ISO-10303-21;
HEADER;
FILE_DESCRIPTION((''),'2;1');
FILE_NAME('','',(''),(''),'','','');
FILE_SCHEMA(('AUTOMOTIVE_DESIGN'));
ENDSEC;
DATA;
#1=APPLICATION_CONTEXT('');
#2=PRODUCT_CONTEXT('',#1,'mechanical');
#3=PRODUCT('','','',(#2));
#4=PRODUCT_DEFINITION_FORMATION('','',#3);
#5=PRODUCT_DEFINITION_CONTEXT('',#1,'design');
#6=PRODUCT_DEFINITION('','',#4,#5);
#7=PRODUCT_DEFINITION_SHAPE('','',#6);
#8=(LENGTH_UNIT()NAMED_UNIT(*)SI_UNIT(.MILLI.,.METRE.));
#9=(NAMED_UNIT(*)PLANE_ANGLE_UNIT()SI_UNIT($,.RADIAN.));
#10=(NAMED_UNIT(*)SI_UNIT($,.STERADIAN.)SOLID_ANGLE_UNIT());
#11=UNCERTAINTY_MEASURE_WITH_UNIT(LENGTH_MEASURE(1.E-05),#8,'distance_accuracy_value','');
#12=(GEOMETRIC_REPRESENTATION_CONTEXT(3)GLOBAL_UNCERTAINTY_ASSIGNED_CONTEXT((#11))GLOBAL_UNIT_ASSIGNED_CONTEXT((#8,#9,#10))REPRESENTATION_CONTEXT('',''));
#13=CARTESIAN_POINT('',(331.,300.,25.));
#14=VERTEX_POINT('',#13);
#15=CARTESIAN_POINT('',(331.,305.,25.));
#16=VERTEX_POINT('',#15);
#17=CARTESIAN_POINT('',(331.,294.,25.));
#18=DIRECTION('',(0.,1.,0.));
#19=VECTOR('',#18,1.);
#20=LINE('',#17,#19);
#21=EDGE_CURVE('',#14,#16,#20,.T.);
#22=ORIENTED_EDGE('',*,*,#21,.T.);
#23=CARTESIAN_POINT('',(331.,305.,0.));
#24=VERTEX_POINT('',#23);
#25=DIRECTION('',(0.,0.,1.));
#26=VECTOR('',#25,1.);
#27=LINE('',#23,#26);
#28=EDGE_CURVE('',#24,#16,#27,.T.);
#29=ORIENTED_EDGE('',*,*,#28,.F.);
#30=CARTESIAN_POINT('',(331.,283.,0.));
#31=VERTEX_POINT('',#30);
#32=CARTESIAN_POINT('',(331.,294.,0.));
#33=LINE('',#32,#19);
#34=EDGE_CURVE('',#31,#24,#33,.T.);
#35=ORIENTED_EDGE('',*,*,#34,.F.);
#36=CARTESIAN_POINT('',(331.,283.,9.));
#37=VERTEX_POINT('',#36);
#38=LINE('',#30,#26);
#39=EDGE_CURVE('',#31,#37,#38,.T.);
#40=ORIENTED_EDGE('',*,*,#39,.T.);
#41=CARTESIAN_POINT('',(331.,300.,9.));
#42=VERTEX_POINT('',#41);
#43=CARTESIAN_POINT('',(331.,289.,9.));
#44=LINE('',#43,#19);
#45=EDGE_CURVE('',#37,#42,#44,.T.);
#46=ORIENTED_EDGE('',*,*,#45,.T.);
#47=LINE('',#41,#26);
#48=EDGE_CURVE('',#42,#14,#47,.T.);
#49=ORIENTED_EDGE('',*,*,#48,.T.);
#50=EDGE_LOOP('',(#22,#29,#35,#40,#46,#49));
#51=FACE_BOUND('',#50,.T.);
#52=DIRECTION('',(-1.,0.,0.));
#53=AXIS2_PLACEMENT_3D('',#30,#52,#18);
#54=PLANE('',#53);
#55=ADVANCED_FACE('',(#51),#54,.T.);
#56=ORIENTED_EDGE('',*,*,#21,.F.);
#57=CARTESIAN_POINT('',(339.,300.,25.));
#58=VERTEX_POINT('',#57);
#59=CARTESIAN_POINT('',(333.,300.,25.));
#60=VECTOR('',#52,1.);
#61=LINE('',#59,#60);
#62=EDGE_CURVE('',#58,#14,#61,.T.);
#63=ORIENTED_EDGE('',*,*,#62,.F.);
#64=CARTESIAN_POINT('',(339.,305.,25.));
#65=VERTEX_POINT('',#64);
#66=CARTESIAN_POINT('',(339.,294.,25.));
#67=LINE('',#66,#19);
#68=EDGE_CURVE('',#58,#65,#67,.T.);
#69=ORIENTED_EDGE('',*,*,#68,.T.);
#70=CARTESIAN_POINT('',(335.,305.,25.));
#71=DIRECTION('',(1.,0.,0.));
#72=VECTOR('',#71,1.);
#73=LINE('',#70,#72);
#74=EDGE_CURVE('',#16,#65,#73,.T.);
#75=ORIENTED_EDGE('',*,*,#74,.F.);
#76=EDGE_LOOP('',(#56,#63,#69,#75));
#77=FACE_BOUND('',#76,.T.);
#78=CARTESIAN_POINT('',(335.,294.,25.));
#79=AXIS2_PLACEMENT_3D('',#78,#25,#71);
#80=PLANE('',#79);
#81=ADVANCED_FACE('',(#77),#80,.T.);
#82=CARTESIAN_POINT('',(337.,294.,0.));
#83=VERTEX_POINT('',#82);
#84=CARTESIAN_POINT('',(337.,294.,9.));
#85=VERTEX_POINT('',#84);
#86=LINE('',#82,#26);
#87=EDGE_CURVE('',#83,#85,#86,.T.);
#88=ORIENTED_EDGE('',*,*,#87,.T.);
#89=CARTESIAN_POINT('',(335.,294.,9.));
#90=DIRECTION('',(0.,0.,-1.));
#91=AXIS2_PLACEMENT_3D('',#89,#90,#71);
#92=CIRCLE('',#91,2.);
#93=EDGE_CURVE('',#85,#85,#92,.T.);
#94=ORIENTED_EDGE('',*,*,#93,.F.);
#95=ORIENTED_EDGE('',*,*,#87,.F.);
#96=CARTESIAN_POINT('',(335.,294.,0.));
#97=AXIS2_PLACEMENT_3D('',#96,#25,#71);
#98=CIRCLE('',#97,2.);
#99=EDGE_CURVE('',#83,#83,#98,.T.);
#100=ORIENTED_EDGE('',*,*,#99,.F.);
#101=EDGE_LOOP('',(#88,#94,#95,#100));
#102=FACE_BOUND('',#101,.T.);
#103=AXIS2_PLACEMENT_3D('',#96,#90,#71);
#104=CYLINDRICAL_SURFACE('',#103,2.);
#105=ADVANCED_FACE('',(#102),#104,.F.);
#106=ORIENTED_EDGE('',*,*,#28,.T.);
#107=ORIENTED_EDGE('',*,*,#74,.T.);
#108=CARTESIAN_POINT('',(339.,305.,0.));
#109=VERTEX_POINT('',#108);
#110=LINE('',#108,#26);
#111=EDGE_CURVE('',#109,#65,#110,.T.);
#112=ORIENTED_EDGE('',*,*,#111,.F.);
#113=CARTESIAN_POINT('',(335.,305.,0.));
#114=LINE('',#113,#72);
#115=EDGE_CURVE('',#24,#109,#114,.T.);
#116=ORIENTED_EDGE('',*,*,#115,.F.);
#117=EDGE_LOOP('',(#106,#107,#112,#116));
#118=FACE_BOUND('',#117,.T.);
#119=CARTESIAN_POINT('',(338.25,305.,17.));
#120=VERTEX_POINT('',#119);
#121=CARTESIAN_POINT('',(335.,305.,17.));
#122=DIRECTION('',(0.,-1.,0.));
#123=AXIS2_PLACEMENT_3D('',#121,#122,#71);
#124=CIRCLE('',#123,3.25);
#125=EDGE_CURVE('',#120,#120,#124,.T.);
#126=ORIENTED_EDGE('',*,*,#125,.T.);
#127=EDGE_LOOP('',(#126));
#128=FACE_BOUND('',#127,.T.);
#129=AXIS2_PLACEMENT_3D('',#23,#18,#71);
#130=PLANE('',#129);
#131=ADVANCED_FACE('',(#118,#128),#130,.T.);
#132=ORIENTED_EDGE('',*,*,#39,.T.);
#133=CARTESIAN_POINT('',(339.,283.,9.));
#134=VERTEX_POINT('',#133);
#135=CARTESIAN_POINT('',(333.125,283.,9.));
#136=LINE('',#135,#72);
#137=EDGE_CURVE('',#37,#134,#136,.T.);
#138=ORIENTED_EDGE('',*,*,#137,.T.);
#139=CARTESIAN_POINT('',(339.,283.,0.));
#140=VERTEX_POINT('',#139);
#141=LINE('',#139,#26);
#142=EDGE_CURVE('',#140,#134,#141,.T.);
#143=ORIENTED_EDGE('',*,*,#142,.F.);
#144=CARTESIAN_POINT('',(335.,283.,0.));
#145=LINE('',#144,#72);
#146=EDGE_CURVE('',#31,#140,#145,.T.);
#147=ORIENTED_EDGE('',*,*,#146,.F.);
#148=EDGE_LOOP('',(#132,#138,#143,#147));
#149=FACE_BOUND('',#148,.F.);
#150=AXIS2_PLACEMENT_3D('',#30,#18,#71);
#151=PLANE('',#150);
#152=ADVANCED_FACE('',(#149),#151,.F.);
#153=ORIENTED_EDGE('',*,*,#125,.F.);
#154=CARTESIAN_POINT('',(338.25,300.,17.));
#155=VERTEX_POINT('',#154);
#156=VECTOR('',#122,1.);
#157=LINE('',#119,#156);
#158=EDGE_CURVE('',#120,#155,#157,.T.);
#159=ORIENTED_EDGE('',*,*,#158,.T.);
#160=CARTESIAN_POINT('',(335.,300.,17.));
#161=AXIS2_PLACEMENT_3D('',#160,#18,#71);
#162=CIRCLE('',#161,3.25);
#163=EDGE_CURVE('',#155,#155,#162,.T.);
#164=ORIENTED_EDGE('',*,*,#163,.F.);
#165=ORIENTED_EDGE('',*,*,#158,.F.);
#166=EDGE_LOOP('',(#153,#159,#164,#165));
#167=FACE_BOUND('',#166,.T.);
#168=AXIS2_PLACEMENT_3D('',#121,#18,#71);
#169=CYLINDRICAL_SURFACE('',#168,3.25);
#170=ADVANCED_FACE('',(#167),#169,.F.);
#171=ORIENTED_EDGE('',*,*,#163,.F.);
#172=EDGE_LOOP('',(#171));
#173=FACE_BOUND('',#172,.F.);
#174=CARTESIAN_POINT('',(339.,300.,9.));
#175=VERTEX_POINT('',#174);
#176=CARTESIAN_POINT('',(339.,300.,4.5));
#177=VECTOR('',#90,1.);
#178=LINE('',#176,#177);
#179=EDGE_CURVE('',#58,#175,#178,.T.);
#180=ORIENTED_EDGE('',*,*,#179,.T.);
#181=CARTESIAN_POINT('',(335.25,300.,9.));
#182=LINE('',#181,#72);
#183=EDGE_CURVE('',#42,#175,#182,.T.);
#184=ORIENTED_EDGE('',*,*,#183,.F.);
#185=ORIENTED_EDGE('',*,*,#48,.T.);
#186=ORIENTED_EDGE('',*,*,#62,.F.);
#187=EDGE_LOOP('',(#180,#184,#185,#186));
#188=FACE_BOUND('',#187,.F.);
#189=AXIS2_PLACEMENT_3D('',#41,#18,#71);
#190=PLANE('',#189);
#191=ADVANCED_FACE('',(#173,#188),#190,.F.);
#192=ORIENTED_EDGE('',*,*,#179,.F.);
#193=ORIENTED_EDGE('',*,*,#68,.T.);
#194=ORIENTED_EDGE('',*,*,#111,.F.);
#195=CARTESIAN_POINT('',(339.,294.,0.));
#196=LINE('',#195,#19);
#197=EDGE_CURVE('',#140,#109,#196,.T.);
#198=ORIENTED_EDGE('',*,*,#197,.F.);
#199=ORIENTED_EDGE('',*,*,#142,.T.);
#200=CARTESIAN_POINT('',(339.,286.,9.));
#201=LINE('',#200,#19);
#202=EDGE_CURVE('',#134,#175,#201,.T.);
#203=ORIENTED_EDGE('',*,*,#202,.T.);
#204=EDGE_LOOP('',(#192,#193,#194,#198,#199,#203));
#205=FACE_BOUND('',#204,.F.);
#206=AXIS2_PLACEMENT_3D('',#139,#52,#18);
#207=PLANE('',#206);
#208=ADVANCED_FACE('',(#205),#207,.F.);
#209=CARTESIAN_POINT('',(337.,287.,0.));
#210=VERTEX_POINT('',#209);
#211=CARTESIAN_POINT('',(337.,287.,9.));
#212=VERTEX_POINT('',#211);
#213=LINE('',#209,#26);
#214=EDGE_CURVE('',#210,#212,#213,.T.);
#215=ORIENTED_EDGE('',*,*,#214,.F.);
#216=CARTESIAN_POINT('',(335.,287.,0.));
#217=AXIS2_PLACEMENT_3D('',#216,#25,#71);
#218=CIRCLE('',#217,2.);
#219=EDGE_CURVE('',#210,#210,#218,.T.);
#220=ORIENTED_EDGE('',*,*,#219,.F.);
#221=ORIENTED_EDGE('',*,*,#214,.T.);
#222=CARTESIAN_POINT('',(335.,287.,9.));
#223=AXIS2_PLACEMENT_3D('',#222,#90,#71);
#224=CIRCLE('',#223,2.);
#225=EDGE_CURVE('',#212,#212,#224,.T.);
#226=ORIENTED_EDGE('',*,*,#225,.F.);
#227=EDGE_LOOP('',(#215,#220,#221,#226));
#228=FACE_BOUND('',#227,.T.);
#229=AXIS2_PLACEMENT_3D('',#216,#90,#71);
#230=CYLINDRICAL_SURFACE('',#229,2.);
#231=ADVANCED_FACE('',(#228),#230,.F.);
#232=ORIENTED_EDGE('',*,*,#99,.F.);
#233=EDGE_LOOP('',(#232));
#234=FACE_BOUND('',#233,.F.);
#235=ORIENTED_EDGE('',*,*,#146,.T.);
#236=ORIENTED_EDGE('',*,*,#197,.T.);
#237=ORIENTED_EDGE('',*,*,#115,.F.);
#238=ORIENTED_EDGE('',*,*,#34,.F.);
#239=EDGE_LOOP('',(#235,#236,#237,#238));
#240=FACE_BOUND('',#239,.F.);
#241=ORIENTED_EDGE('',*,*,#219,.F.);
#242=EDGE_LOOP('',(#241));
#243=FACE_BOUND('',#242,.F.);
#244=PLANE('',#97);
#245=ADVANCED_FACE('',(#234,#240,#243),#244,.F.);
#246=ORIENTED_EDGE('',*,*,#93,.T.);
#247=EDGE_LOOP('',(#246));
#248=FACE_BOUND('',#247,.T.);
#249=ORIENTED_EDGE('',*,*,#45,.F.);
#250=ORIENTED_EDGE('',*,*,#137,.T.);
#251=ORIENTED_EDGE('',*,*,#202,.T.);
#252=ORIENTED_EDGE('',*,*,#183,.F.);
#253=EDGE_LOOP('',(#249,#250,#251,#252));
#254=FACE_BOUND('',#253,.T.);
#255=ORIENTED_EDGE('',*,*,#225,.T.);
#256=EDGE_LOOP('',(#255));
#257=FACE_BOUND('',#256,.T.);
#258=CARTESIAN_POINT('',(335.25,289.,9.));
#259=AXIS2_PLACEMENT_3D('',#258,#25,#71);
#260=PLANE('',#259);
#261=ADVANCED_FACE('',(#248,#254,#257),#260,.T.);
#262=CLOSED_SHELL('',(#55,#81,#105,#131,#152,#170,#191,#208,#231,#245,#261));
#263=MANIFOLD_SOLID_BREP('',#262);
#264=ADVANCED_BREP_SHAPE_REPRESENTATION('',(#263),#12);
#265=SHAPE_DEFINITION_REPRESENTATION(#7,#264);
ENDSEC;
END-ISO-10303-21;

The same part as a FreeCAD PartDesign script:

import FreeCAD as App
import Part
import Sketcher

V = App.Vector
Q = App.Units.Quantity


def add_polygon(sketch, points):
    """Adds a closed chain of lines whose ends are joined by coincident constraints."""
    first, n = sketch.GeometryCount, len(points)
    for a, b in zip(points, points[1:] + points[:1]):
        sketch.addGeometry(Part.LineSegment(App.Vector(*a, 0), App.Vector(*b, 0)), False)
    for i in range(n):
        sketch.addConstraint(Sketcher.Constraint("Coincident", first + i, 2, first + (i + 1) % n, 1))

doc = App.newDocument("Part")
body = doc.addObject("PartDesign::Body", "Body")

sketch1 = doc.addObject("Sketcher::SketchObject", "Sketch")
body.addObject(sketch1)
sketch1.AttachmentSupport = (doc.XY_Plane, [""])
sketch1.MapMode = "FlatFace"
sketch1.addGeometry(Part.Circle(V(335, 287, 0), V(0, 0, 1), 2), False)
sketch1.addConstraint(Sketcher.Constraint("Diameter", 0, Q("4 mm")))
sketch1.addConstraint(Sketcher.Constraint("DistanceX", -1, 1, 0, 3, Q("335 mm")))
sketch1.addConstraint(Sketcher.Constraint("DistanceY", -1, 1, 0, 3, Q("287 mm")))
pad1 = doc.addObject("PartDesign::Pad", "Pad")
body.addObject(pad1)
pad1.Profile = sketch1
pad1.Length = 10
body2 = doc.addObject("PartDesign::Body", "Body001")

sketch2 = doc.addObject("Sketcher::SketchObject", "Sketch001")
body2.addObject(sketch2)
sketch2.AttachmentSupport = (doc.getObject("XZ_Plane001"), [""])
sketch2.MapMode = "FlatFace"
sketch2.AttachmentOffset = App.Placement(V(0, 0, -305), App.Rotation())
sketch2.addGeometry(Part.Circle(V(335, 17, 0), V(0, 0, 1), 3.2), False)
sketch2.addConstraint(Sketcher.Constraint("Diameter", 0, Q("6.5 mm")))
sketch2.addConstraint(Sketcher.Constraint("DistanceX", -1, 1, 0, 3, Q("335 mm")))
sketch2.addConstraint(Sketcher.Constraint("DistanceY", -1, 1, 0, 3, Q("17 mm")))
pad2 = doc.addObject("PartDesign::Pad", "Pad001")
body2.addObject(pad2)
pad2.Profile = sketch2
pad2.Length = 10
body3 = doc.addObject("PartDesign::Body", "Body002")
body3.AllowCompound = True

sketch3 = doc.addObject("Sketcher::SketchObject", "Sketch002")
body3.addObject(sketch3)
sketch3.AttachmentSupport = (doc.getObject("XY_Plane002"), [""])
sketch3.MapMode = "FlatFace"
sketch3.addGeometry(Part.Circle(V(335, 294, 0), V(0, 0, 1), 2), False)
sketch3.addConstraint(Sketcher.Constraint("Diameter", 0, Q("4 mm")))
sketch3.addConstraint(Sketcher.Constraint("DistanceX", -1, 1, 0, 3, Q("335 mm")))
sketch3.addConstraint(Sketcher.Constraint("DistanceY", -1, 1, 0, 3, Q("294 mm")))
pad3 = doc.addObject("PartDesign::Pad", "Pad002")
body3.addObject(pad3)
pad3.Profile = sketch3
pad3.Length = 10
doc.recompute()

boolean = doc.addObject("PartDesign::Boolean", "Boolean")
body3.addObject(boolean)
boolean.Type = "Fuse"
boolean.addObjects([body2])
body4 = doc.addObject("PartDesign::Body", "Body003")

sketch4 = doc.addObject("Sketcher::SketchObject", "Sketch003")
body4.addObject(sketch4)
sketch4.AttachmentSupport = (doc.getObject("XY_Plane003"), [""])
sketch4.MapMode = "FlatFace"
sketch4.AttachmentOffset = App.Placement(V(0, 0, 9), App.Rotation())
add_polygon(sketch4, [(331, 300), (331, 278), (340, 278), (340, 300)])
sketch4.addConstraint(Sketcher.Constraint("Vertical", 0))
sketch4.addConstraint(Sketcher.Constraint("Horizontal", 1))
sketch4.addConstraint(Sketcher.Constraint("Vertical", 2))
sketch4.addConstraint(Sketcher.Constraint("Horizontal", 3))
sketch4.addConstraint(Sketcher.Constraint("DistanceY", 0, 2, 0, 1, Q("22 mm")))
sketch4.addConstraint(Sketcher.Constraint("DistanceX", 1, 1, 1, 2, Q("8.5 mm")))
sketch4.addConstraint(Sketcher.Constraint("DistanceX", -1, 1, 0, 2, Q("331 mm")))
sketch4.addConstraint(Sketcher.Constraint("DistanceY", -1, 1, 0, 2, Q("278 mm")))
pad4 = doc.addObject("PartDesign::Pad", "Pad003")
body4.addObject(pad4)
pad4.Profile = sketch4
pad4.Length = 25
body5 = doc.addObject("PartDesign::Body", "Body004")

sketch5 = doc.addObject("Sketcher::SketchObject", "Sketch004")
body5.addObject(sketch5)
sketch5.AttachmentSupport = (doc.getObject("XY_Plane004"), [""])
sketch5.MapMode = "FlatFace"
add_polygon(sketch5, [(331, 305), (331, 283), (339, 283), (339, 305)])
sketch5.addConstraint(Sketcher.Constraint("Vertical", 0))
sketch5.addConstraint(Sketcher.Constraint("Horizontal", 1))
sketch5.addConstraint(Sketcher.Constraint("Vertical", 2))
sketch5.addConstraint(Sketcher.Constraint("Horizontal", 3))
sketch5.addConstraint(Sketcher.Constraint("DistanceX", 1, 1, 1, 2, Q("8 mm")))
sketch5.addConstraint(Sketcher.Constraint("DistanceY", 0, 2, 0, 1, Q("22 mm")))
sketch5.addConstraint(Sketcher.Constraint("DistanceX", -1, 1, 0, 2, Q("331 mm")))
sketch5.addConstraint(Sketcher.Constraint("DistanceY", -1, 1, 0, 2, Q("283 mm")))
pad5 = doc.addObject("PartDesign::Pad", "Pad004")
body5.addObject(pad5)
pad5.Profile = sketch5
pad5.Length = 25
doc.recompute()

boolean2 = doc.addObject("PartDesign::Boolean", "Boolean001")
body5.addObject(boolean2)
boolean2.Type = "Cut"
boolean2.addObjects([body4])
doc.recompute()

boolean3 = doc.addObject("PartDesign::Boolean", "Boolean002")
body5.addObject(boolean3)
boolean3.Type = "Cut"
boolean3.addObjects([body3])
doc.recompute()

boolean4 = doc.addObject("PartDesign::Boolean", "Boolean003")
body5.addObject(boolean4)
boolean4.Type = "Cut"
boolean4.addObjects([body])

doc.recompute()
